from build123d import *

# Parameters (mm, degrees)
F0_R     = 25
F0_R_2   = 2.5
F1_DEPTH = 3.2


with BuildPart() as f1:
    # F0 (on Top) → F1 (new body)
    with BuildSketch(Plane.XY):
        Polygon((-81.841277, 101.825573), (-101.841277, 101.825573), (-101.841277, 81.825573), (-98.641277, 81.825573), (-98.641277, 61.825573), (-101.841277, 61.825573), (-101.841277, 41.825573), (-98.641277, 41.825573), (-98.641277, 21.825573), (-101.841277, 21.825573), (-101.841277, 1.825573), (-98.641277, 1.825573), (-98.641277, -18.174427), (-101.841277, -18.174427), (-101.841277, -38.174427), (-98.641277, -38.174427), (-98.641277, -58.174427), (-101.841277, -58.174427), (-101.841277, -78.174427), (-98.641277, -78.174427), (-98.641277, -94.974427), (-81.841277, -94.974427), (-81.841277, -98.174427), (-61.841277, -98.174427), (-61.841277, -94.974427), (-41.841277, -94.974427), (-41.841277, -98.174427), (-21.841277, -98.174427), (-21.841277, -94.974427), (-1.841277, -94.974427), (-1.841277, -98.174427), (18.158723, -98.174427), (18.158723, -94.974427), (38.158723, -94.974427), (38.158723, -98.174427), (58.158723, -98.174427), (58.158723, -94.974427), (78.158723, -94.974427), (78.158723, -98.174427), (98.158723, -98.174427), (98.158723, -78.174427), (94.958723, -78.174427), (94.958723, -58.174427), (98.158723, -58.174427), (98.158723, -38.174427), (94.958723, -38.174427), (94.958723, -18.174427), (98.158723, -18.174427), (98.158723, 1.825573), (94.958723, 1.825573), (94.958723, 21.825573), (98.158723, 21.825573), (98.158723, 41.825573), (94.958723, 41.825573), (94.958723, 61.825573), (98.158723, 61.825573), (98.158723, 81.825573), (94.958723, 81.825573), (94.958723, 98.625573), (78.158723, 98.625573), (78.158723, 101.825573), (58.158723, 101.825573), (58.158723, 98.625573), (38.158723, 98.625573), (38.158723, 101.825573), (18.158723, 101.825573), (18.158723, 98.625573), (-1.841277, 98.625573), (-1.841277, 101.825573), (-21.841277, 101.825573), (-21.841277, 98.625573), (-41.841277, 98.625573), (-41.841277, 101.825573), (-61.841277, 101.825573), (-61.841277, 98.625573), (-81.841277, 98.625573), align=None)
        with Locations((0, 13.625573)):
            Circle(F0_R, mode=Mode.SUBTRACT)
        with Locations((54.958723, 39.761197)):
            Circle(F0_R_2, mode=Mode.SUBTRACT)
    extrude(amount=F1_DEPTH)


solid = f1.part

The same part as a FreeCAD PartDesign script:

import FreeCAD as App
import Part
import Sketcher
from FreeCAD import Vector
Q = App.Units.Quantity


def add_polygon(sketch, points):
    """Adds a closed chain of lines whose ends are joined by coincident constraints."""
    first, n = sketch.GeometryCount, len(points)
    for a, b in zip(points, points[1:] + points[:1]):
        sketch.addGeometry(Part.LineSegment(App.Vector(*a, 0), App.Vector(*b, 0)), False)
    for i in range(n):
        sketch.addConstraint(Sketcher.Constraint("Coincident", first + i, 2, first + (i + 1) % n, 1))

doc = App.newDocument("Part")
params = doc.addObject("Spreadsheet::Sheet", "Params")
for row, (alias, value) in enumerate([
    ("sketch1_diameter", "50 mm"),
    ("sketch1_diameter2", "5 mm"),
    ("sketch1_width", "20 mm"),
    ("sketch1_width2", "3.2 mm"),
    ("pad1_length", "3.2 mm"),
], start=1):
    params.set(f"A{row}", alias)
    params.set(f"B{row}", "=" + value)
    params.setAlias(f"B{row}", alias)

body = doc.addObject("PartDesign::Body", "Body")

# Sketch on XY plane
sketch1 = body.newObject("Sketcher::SketchObject", "Sketch")
sketch1.AttachmentSupport = (doc.getObject("XY_Plane"), [""])
sketch1.MapMode = "FlatFace"
add_polygon(sketch1, [(-81.841277, 101.825573), (-101.841277, 101.825573), (-101.841277, 81.825573), (-98.641277, 81.825573), (-98.641277, 61.825573), (-101.841277, 61.825573), (-101.841277, 41.825573), (-98.641277, 41.825573), (-98.641277, 21.825573), (-101.841277, 21.825573), (-101.841277, 1.825573), (-98.641277, 1.825573), (-98.641277, -18.174427), (-101.841277, -18.174427), (-101.841277, -38.174427), (-98.641277, -38.174427), (-98.641277, -58.174427), (-101.841277, -58.174427), (-101.841277, -78.174427), (-98.641277, -78.174427), (-98.641277, -94.974427), (-81.841277, -94.974427), (-81.841277, -98.174427), (-61.841277, -98.174427), (-61.841277, -94.974427), (-41.841277, -94.974427), (-41.841277, -98.174427), (-21.841277, -98.174427), (-21.841277, -94.974427), (-1.841277, -94.974427), (-1.841277, -98.174427), (18.158723, -98.174427), (18.158723, -94.974427), (38.158723, -94.974427), (38.158723, -98.174427), (58.158723, -98.174427), (58.158723, -94.974427), (78.158723, -94.974427), (78.158723, -98.174427), (98.158723, -98.174427), (98.158723, -78.174427), (94.958723, -78.174427), (94.958723, -58.174427), (98.158723, -58.174427), (98.158723, -38.174427), (94.958723, -38.174427), (94.958723, -18.174427), (98.158723, -18.174427), (98.158723, 1.825573), (94.958723, 1.825573), (94.958723, 21.825573), (98.158723, 21.825573), (98.158723, 41.825573), (94.958723, 41.825573), (94.958723, 61.825573), (98.158723, 61.825573), (98.158723, 81.825573), (94.958723, 81.825573), (94.958723, 98.625573), (78.158723, 98.625573), (78.158723, 101.825573), (58.158723, 101.825573), (58.158723, 98.625573), (38.158723, 98.625573), (38.158723, 101.825573), (18.158723, 101.825573), (18.158723, 98.625573), (-1.841277, 98.625573), (-1.841277, 101.825573), (-21.841277, 101.825573), (-21.841277, 98.625573), (-41.841277, 98.625573), (-41.841277, 101.825573), (-61.841277, 101.825573), (-61.841277, 98.625573), (-81.841277, 98.625573)])  # lines 0-75
sketch1.addGeometry(Part.Circle(Vector(0, 13.625573, 0), Vector(0, 0, 1), 25), False)  # 76
sketch1.addGeometry(Part.Circle(Vector(54.958723, 39.761197, 0), Vector(0, 0, 1), 2.5), False)  # 77
sketch1.addConstraint([
    Sketcher.Constraint("Horizontal", 0),
    Sketcher.Constraint("Vertical", 1),
    Sketcher.Constraint("Horizontal", 2),
    Sketcher.Constraint("Vertical", 3),
    Sketcher.Constraint("Horizontal", 4),
    Sketcher.Constraint("Vertical", 5),
    Sketcher.Constraint("Horizontal", 6),
    Sketcher.Constraint("Vertical", 7),
    Sketcher.Constraint("Horizontal", 8),
    Sketcher.Constraint("Vertical", 9),
    Sketcher.Constraint("Horizontal", 10),
    Sketcher.Constraint("Vertical", 11),
    Sketcher.Constraint("Horizontal", 12),
    Sketcher.Constraint("Vertical", 13),
    Sketcher.Constraint("Horizontal", 14),
    Sketcher.Constraint("Vertical", 15),
    Sketcher.Constraint("Horizontal", 16),
    Sketcher.Constraint("Vertical", 17),
    Sketcher.Constraint("Horizontal", 18),
    Sketcher.Constraint("Vertical", 19),
    Sketcher.Constraint("Horizontal", 20),
    Sketcher.Constraint("Vertical", 21),
    Sketcher.Constraint("Horizontal", 22),
    Sketcher.Constraint("Vertical", 23),
    Sketcher.Constraint("Horizontal", 24),
    Sketcher.Constraint("Vertical", 25),
    Sketcher.Constraint("Horizontal", 26),
    Sketcher.Constraint("Vertical", 27),
    Sketcher.Constraint("Horizontal", 28),
    Sketcher.Constraint("Vertical", 29),
    Sketcher.Constraint("Horizontal", 30),
    Sketcher.Constraint("Vertical", 31),
    Sketcher.Constraint("Horizontal", 32),
    Sketcher.Constraint("Vertical", 33),
    Sketcher.Constraint("Horizontal", 34),
    Sketcher.Constraint("Vertical", 35),
    Sketcher.Constraint("Horizontal", 36),
    Sketcher.Constraint("Vertical", 37),
    Sketcher.Constraint("Horizontal", 38),
    Sketcher.Constraint("Vertical", 39),
    Sketcher.Constraint("Horizontal", 40),
    Sketcher.Constraint("Vertical", 41),
    Sketcher.Constraint("Horizontal", 42),
    Sketcher.Constraint("Vertical", 43),
    Sketcher.Constraint("Horizontal", 44),
    Sketcher.Constraint("Vertical", 45),
    Sketcher.Constraint("Horizontal", 46),
    Sketcher.Constraint("Vertical", 47),
    Sketcher.Constraint("Horizontal", 48),
    Sketcher.Constraint("Vertical", 49),
    Sketcher.Constraint("Horizontal", 50),
    Sketcher.Constraint("Vertical", 51),
    Sketcher.Constraint("Horizontal", 52),
    Sketcher.Constraint("Vertical", 53),
    Sketcher.Constraint("Horizontal", 54),
    Sketcher.Constraint("Vertical", 55),
    Sketcher.Constraint("Horizontal", 56),
    Sketcher.Constraint("Vertical", 57),
    Sketcher.Constraint("Horizontal", 58),
    Sketcher.Constraint("Vertical", 59),
    Sketcher.Constraint("Horizontal", 60),
    Sketcher.Constraint("Vertical", 61),
    Sketcher.Constraint("Horizontal", 62),
    Sketcher.Constraint("Vertical", 63),
    Sketcher.Constraint("Horizontal", 64),
    Sketcher.Constraint("Vertical", 65),
    Sketcher.Constraint("Horizontal", 66),
    Sketcher.Constraint("Vertical", 67),
    Sketcher.Constraint("Horizontal", 68),
    Sketcher.Constraint("Vertical", 69),
    Sketcher.Constraint("Horizontal", 70),
    Sketcher.Constraint("Vertical", 71),
    Sketcher.Constraint("Horizontal", 72),
    Sketcher.Constraint("Vertical", 73),
    Sketcher.Constraint("Horizontal", 74),
    Sketcher.Constraint("Vertical", 75),
    Sketcher.Constraint("PointOnObject", 76, 3, -2),
    Sketcher.Constraint("Horizontal", 20, 2, 23, 2),
    Sketcher.Constraint("Horizontal", 22, 2, 25, 2),
    Sketcher.Constraint("Horizontal", 24, 2, 27, 2),
    Sketcher.Constraint("Horizontal", 26, 2, 29, 2),
    Sketcher.Constraint("Horizontal", 28, 2, 31, 2),
    Sketcher.Constraint("Horizontal", 30, 2, 33, 2),
    Sketcher.Constraint("Horizontal", 32, 2, 35, 2),
    Sketcher.Constraint("Horizontal", 34, 2, 37, 2),
    Sketcher.Constraint("Horizontal", 18, 2, 39, 2),
    Sketcher.Constraint("Horizontal", 16, 2, 41, 2),
    Sketcher.Constraint("Horizontal", 14, 2, 43, 2),
    Sketcher.Constraint("Horizontal", 12, 2, 45, 2),
    Sketcher.Constraint("Horizontal", 10, 2, 47, 2),
    Sketcher.Constraint("Horizontal", 8, 2, 49, 2),
    Sketcher.Constraint("Horizontal", 6, 2, 51, 2),
    Sketcher.Constraint("Horizontal", 4, 2, 53, 2),
    Sketcher.Constraint("Horizontal", 2, 2, 55, 2),
    Sketcher.Constraint("Horizontal", 0, 2, 59, 2),
    Sketcher.Constraint("Horizontal", 58, 2, 61, 2),
    Sketcher.Constraint("Horizontal", 60, 2, 63, 2),
    Sketcher.Constraint("Horizontal", 62, 2, 65, 2),
    Sketcher.Constraint("Horizontal", 64, 2, 67, 2),
    Sketcher.Constraint("Horizontal", 66, 2, 69, 2),
    Sketcher.Constraint("Horizontal", 68, 2, 71, 2),
    Sketcher.Constraint("Horizontal", 70, 2, 73, 2),
    Sketcher.Constraint("Vertical", 1, 2, 4, 2),
    Sketcher.Constraint("Vertical", 3, 2, 6, 2),
    Sketcher.Constraint("Vertical", 5, 2, 8, 2),
    Sketcher.Constraint("Vertical", 7, 2, 10, 2),
    Sketcher.Constraint("Vertical", 9, 2, 12, 2),
    Sketcher.Constraint("Vertical", 11, 2, 14, 2),
    Sketcher.Constraint("Vertical", 13, 2, 16, 2),
    Sketcher.Constraint("Vertical", 15, 2, 18, 2),
    Sketcher.Constraint("Vertical", 39, 2, 42, 2),
    Sketcher.Constraint("Vertical", 41, 2, 44, 2),
    Sketcher.Constraint("Vertical", 43, 2, 46, 2),
    Sketcher.Constraint("Vertical", 45, 2, 48, 2),
    Sketcher.Constraint("Vertical", 47, 2, 50, 2),
    Sketcher.Constraint("Vertical", 49, 2, 52, 2),
    Sketcher.Constraint("Vertical", 51, 2, 54, 2),
    Sketcher.Constraint("Vertical", 53, 2, 56, 2),
    Sketcher.Constraint("Vertical", 37, 2, 58, 2),
    Sketcher.Constraint("Vertical", 35, 2, 60, 2),
    Sketcher.Constraint("Vertical", 33, 2, 62, 2),
    Sketcher.Constraint("Vertical", 31, 2, 64, 2),
    Sketcher.Constraint("Vertical", 29, 2, 66, 2),
    Sketcher.Constraint("Vertical", 27, 2, 68, 2),
    Sketcher.Constraint("Vertical", 25, 2, 70, 2),
    Sketcher.Constraint("Vertical", 23, 2, 72, 2),
    Sketcher.Constraint("Vertical", 21, 2, 74, 2),
    Sketcher.Constraint("Equal", 0, 22),
    Sketcher.Constraint("Equal", 22, 24),
    Sketcher.Constraint("Equal", 24, 26),
    Sketcher.Constraint("Equal", 26, 28),
    Sketcher.Constraint("Equal", 28, 30),
    Sketcher.Constraint("Equal", 30, 32),
    Sketcher.Constraint("Equal", 32, 34),
    Sketcher.Constraint("Equal", 34, 36),
    Sketcher.Constraint("Equal", 36, 38),
    Sketcher.Constraint("Equal", 18, 40),
    Sketcher.Constraint("Equal", 74, 1),
    Sketcher.Constraint("Equal", 1, 3),
    Sketcher.Constraint("Equal", 3, 5),
    Sketcher.Constraint("Equal", 5, 7),
    Sketcher.Constraint("Equal", 7, 9),
    Sketcher.Constraint("Equal", 9, 11),
    Sketcher.Constraint("Equal", 11, 13),
    Sketcher.Constraint("Equal", 13, 15),
    Sketcher.Constraint("Equal", 15, 17),
    Sketcher.Constraint("Equal", 58, 19),
    Sketcher.Constraint("Equal", 56, 21),
    Sketcher.Constraint("Equal", 19, 57),
    Sketcher.Constraint("Diameter", 76, Q("50 mm")),
    Sketcher.Constraint("Diameter", 77, Q("5 mm")),
    Sketcher.Constraint("DistanceX", 0, 2, 0, 1, Q("20 mm")),
    Sketcher.Constraint("DistanceX", 2, 1, 2, 2, Q("3.2 mm")),
    Sketcher.Constraint("DistanceY", -1, 1, 76, 3, Q("13.625573 mm")),
    Sketcher.Constraint("DistanceX", -1, 1, 77, 3, Q("54.958723 mm")),
    Sketcher.Constraint("DistanceY", -1, 1, 77, 3, Q("39.761197 mm")),
    Sketcher.Constraint("DistanceX", 0, 2, -1, 1, Q("101.841277 mm")),
    Sketcher.Constraint("DistanceY", -1, 1, 0, 2, Q("101.825573 mm")),
])
sketch1.setExpression("Constraints[225]", "Params.sketch1_diameter")
sketch1.setExpression("Constraints[226]", "Params.sketch1_diameter2")
sketch1.setExpression("Constraints[227]", "Params.sketch1_width")
sketch1.setExpression("Constraints[228]", "Params.sketch1_width2")
pad1 = body.newObject("PartDesign::Pad", "Pad")
pad1.Profile = sketch1
pad1.setExpression("Length", "Params.pad1_length")

doc.recompute()
